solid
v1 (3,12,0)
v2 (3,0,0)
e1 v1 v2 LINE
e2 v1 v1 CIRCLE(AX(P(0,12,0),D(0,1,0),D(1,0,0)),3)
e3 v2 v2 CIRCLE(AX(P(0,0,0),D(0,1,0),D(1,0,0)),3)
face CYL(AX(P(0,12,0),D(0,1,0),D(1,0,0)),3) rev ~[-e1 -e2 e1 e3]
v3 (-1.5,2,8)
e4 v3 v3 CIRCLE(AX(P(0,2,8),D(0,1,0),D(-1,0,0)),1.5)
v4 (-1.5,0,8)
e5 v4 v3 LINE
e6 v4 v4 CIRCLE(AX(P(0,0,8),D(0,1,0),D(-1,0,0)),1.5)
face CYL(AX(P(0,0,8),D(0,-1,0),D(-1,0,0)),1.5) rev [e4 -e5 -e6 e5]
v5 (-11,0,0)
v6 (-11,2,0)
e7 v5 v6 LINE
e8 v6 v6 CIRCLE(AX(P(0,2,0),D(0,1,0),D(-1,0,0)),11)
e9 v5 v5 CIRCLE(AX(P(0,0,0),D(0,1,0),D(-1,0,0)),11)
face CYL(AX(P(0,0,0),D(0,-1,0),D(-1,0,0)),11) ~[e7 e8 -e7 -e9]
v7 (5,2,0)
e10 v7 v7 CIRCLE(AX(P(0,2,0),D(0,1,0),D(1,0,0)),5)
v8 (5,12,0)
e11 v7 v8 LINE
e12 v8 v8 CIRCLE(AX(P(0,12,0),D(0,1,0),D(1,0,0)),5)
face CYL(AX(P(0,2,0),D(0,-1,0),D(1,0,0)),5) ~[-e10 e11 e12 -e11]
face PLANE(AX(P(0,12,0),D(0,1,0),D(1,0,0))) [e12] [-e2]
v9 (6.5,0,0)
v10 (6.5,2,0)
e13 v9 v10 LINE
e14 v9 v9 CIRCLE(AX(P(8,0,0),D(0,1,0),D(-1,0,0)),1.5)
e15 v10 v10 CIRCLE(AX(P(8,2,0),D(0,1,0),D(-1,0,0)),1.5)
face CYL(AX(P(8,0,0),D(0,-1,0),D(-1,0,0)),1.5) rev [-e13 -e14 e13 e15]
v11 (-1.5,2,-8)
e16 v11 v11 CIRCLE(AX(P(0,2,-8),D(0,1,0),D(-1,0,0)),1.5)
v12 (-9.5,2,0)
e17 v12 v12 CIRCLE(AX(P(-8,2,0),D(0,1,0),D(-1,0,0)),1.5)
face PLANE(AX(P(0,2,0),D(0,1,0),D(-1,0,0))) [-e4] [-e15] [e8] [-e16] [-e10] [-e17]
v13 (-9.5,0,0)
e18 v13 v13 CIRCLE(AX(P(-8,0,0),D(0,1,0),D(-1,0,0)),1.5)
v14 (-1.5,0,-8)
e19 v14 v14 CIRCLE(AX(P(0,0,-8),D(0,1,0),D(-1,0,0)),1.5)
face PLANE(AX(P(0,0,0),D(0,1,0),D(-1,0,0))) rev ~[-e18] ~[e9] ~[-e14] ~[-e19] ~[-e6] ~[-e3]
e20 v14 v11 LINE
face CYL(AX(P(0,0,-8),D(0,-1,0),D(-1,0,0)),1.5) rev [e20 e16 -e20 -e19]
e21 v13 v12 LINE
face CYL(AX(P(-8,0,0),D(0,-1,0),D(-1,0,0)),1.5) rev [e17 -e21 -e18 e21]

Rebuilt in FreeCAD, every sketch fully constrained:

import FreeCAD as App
import Part
import Sketcher

V = App.Vector

doc = App.newDocument("Part")
body = doc.addObject("PartDesign::Body", "Body")

# Sketch on XZ plane
sketch1 = doc.addObject("Sketcher::SketchObject", "Sketch")
body.addObject(sketch1)
sketch1.AttachmentSupport = (doc.XZ_Plane, [""])
sketch1.MapMode = "FlatFace"
sketch1.addGeometry(Part.Circle(V(0, 0, 0), V(0, 0, 1), 11), False)
sketch1.addGeometry(Part.Circle(V(0, -8, 0), V(0, 0, 1), 1.5), False)
sketch1.addGeometry(Part.Circle(V(8, 0, 0), V(0, 0, 1), 1.5), False)
sketch1.addGeometry(Part.Circle(V(-8, 0, 0), V(0, 0, 1), 1.5), False)
sketch1.addGeometry(Part.Circle(V(0, 8, 0), V(0, 0, 1), 1.5), False)
sketch1.addConstraint(Sketcher.Constraint("Coincident", 0, 3, -1, 1))
sketch1.addConstraint(Sketcher.Constraint("Equal", 1, 2))
sketch1.addConstraint(Sketcher.Constraint("Equal", 2, 3))
sketch1.addConstraint(Sketcher.Constraint("Equal", 3, 4))
sketch1.addConstraint(Sketcher.Constraint("Symmetric", 2, 3, 3, 3, -1, 1))
sketch1.addConstraint(Sketcher.Constraint("Symmetric", 1, 3, 4, 3, -1, 1))
sketch1.addConstraint(Sketcher.Constraint("PointOnObject", 1, 3, -2))
sketch1.addConstraint(Sketcher.Constraint("PointOnObject", 2, 3, -1))
sketch1.addConstraint(Sketcher.Constraint("Diameter", 0, 22.0))
sketch1.addConstraint(Sketcher.Constraint("Diameter", 1, 3.0))
sketch1.addConstraint(Sketcher.Constraint("DistanceX", 3, 3, 2, 3, 16.0))
sketch1.addConstraint(Sketcher.Constraint("DistanceY", 1, 3, 4, 3, 16.0))
pad1 = doc.addObject("PartDesign::Pad", "Pad")
body.addObject(pad1)
pad1.Profile = sketch1
pad1.Length = 2
pad1.Reversed = True

# Sketch on XZ plane
sketch2 = doc.addObject("Sketcher::SketchObject", "Sketch001")
body.addObject(sketch2)
sketch2.AttachmentSupport = (doc.XZ_Plane, [""])
sketch2.MapMode = "FlatFace"
sketch2.AttachmentOffset = App.Placement(V(0, 0, -2), App.Rotation())
sketch2.addGeometry(Part.Circle(V(0, 0, 0), V(0, 0, 1), 5), False)
sketch2.addConstraint(Sketcher.Constraint("Coincident", 0, 3, -1, 1))
sketch2.addConstraint(Sketcher.Constraint("Diameter", 0, 10.0))
pad2 = doc.addObject("PartDesign::Pad", "Pad001")
body.addObject(pad2)
pad2.Profile = sketch2
pad2.Length = 10
pad2.Reversed = True

# Sketch on XZ plane
sketch3 = doc.addObject("Sketcher::SketchObject", "Sketch002")
body.addObject(sketch3)
sketch3.AttachmentSupport = (doc.XZ_Plane, [""])
sketch3.MapMode = "FlatFace"
sketch3.AttachmentOffset = App.Placement(V(0, 0, -12), App.Rotation())
sketch3.addGeometry(Part.Circle(V(0, 0, 0), V(0, 0, 1), 3), False)
sketch3.addConstraint(Sketcher.Constraint("Coincident", 0, 3, -1, 1))
sketch3.addConstraint(Sketcher.Constraint("Diameter", 0, 6.0))
pocket1 = doc.addObject("PartDesign::Pocket", "Pocket")
body.addObject(pocket1)
pocket1.Profile = sketch3
pocket1.Type = "ThroughAll"
pocket1.Reversed = True

doc.recompute()
